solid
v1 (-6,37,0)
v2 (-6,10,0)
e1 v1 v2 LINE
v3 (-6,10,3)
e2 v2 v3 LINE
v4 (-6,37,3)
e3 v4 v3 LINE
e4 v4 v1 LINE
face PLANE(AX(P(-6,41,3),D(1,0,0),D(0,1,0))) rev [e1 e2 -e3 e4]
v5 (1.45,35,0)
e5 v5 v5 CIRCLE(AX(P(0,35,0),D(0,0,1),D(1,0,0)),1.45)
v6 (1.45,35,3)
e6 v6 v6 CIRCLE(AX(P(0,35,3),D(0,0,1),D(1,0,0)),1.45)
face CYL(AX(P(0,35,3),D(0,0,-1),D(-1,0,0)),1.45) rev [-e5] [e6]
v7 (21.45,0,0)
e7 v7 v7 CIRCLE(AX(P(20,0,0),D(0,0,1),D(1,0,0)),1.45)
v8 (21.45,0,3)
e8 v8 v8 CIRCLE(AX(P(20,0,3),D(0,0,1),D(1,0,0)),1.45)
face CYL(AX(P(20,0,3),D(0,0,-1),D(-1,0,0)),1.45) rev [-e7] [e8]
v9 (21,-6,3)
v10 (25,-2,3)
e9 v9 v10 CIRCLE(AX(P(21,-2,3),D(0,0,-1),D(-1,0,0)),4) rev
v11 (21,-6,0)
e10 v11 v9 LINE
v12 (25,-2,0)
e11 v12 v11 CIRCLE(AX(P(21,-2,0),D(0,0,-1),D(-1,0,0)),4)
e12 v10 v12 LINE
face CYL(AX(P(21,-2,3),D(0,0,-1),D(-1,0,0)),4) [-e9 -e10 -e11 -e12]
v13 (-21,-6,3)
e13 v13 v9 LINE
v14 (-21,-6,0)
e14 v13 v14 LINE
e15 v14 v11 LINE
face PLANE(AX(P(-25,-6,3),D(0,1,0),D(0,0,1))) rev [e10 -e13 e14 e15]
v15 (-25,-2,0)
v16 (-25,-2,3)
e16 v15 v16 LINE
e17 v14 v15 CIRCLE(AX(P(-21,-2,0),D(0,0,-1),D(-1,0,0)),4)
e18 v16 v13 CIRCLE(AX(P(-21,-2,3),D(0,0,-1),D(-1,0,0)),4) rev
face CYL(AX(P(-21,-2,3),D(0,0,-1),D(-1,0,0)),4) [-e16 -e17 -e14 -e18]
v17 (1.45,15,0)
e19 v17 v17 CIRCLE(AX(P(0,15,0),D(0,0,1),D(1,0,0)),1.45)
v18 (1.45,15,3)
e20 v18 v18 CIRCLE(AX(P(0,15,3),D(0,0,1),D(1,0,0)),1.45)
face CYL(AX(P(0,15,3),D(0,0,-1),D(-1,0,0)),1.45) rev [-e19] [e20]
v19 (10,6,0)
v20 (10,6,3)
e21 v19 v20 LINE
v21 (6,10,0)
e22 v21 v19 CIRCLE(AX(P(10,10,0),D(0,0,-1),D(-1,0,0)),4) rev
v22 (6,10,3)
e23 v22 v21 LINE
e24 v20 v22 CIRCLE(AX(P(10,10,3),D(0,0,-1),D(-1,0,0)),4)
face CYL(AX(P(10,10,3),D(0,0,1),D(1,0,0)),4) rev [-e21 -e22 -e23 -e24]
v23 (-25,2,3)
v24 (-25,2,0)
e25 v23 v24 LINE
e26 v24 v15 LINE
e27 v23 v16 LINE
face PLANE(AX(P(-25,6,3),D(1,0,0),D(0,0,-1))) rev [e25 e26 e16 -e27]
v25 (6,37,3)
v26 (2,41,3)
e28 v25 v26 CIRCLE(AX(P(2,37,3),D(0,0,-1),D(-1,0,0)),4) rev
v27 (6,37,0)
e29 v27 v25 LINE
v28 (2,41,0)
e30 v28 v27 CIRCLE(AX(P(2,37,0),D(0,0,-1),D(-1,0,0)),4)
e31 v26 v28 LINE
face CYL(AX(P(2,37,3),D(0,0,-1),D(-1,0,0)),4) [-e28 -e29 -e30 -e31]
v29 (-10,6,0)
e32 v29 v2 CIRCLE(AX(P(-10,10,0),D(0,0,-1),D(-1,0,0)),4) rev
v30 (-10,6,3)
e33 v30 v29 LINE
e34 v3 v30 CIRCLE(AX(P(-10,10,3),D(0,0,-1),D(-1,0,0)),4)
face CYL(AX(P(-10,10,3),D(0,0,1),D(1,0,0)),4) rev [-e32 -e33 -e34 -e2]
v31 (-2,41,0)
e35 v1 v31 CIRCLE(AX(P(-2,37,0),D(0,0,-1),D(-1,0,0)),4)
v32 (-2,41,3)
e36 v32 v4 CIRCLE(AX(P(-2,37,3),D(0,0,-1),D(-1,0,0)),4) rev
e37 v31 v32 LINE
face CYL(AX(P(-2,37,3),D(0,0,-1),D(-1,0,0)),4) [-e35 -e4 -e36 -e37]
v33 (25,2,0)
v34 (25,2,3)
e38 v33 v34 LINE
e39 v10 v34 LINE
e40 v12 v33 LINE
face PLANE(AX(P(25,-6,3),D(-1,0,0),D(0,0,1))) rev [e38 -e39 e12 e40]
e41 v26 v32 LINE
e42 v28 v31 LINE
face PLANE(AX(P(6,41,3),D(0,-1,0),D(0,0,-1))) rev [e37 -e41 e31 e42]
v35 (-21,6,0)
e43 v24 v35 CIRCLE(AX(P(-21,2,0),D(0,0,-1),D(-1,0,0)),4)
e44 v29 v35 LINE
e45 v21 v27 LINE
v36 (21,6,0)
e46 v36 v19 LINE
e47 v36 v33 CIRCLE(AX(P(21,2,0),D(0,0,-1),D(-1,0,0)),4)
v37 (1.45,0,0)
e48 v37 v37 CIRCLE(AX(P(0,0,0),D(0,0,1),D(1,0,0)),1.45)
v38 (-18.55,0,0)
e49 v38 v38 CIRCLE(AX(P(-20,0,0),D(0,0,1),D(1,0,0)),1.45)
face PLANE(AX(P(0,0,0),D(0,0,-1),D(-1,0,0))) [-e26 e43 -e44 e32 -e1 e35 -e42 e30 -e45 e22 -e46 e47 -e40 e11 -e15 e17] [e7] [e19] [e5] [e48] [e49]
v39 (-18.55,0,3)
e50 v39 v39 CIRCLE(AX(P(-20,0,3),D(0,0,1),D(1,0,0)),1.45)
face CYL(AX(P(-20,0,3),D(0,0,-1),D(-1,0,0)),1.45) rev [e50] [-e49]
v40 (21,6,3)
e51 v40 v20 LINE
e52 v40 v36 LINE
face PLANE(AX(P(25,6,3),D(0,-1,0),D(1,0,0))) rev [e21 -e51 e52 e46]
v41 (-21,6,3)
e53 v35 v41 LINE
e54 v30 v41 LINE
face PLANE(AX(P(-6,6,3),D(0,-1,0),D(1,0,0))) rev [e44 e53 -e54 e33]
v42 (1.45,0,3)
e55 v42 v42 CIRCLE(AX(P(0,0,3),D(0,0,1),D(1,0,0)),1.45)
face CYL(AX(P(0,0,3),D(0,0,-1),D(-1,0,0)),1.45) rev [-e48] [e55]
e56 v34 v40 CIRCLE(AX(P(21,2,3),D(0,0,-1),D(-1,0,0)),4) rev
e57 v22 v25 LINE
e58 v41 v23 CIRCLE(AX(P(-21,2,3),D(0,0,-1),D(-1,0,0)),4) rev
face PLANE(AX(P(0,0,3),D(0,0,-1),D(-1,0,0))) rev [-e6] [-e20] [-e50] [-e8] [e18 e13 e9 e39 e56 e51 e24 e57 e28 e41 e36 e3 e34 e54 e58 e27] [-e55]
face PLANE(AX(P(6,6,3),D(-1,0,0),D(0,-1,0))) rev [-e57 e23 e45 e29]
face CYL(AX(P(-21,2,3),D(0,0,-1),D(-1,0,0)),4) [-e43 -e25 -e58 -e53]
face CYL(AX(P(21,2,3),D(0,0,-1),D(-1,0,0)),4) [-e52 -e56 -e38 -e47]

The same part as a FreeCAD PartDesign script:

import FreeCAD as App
import Part
import Sketcher


def edges_at(feature, points):
    """Names of the edges that pass closest to the given points."""
    edges = feature.Shape.Edges
    near = lambda p: min(range(len(edges)), key=lambda i: edges[i].distToShape(Part.Vertex(*p))[0])
    return sorted({f"Edge{near(p) + 1}" for p in points})


def add_polygon(sketch, points):
    """Adds a closed chain of lines whose ends are joined by coincident constraints."""
    first, n = sketch.GeometryCount, len(points)
    for a, b in zip(points, points[1:] + points[:1]):
        sketch.addGeometry(Part.LineSegment(App.Vector(*a, 0), App.Vector(*b, 0)), False)
    for i in range(n):
        sketch.addConstraint(Sketcher.Constraint("Coincident", first + i, 2, first + (i + 1) % n, 1))

doc = App.newDocument("Part")
body = doc.addObject("PartDesign::Body", "Body")

# Sketch on XY plane
sketch1 = body.newObject("Sketcher::SketchObject", "Sketch")
sketch1.AttachmentSupport = (doc.getObject("XY_Plane"), [""])
sketch1.MapMode = "FlatFace"
add_polygon(sketch1, [(-6, 6), (-25, 6), (-25, -6), (25, -6), (25, 6), (6, 6), (6, 41), (-6, 41)])  # lines 0-7
sketch1.addGeometry(Part.Circle(App.Vector(-20, 0, 0), App.Vector(0, 0, 1), 1.45), False)  # 8
sketch1.addGeometry(Part.Circle(App.Vector(0, 0, 0), App.Vector(0, 0, 1), 1.45), False)  # 9
sketch1.addGeometry(Part.Circle(App.Vector(20, 0, 0), App.Vector(0, 0, 1), 1.45), False)  # 10
sketch1.addGeometry(Part.Circle(App.Vector(0, 15, 0), App.Vector(0, 0, 1), 1.45), False)  # 11
sketch1.addGeometry(Part.Circle(App.Vector(0, 35, 0), App.Vector(0, 0, 1), 1.45), False)  # 12
sketch1.addConstraint([
    Sketcher.Constraint("Horizontal", 0),
    Sketcher.Constraint("Vertical", 1),
    Sketcher.Constraint("Horizontal", 2),
    Sketcher.Constraint("Vertical", 3),
    Sketcher.Constraint("Horizontal", 4),
    Sketcher.Constraint("Vertical", 5),
    Sketcher.Constraint("Horizontal", 6),
    Sketcher.Constraint("Vertical", 7),
    Sketcher.Constraint("Coincident", 9, 3, -1, 1),
    Sketcher.Constraint("Equal", 8, 9),
    Sketcher.Constraint("Equal", 9, 10),
    Sketcher.Constraint("Equal", 10, 11),
    Sketcher.Constraint("Equal", 11, 12),
    Sketcher.Constraint("Symmetric", 8, 3, 10, 3, -1, 1),
    Sketcher.Constraint("Symmetric", 0, 2, 2, 2, -1, 1),
    Sketcher.Constraint("Symmetric", 4, 2, 7, 2, -2),
    Sketcher.Constraint("PointOnObject", 8, 3, -1),
    Sketcher.Constraint("PointOnObject", 11, 3, -2),
    Sketcher.Constraint("PointOnObject", 12, 3, -2),
    Sketcher.Constraint("Equal", 6, 1),
    Sketcher.Constraint("Diameter", 8, 2.9),
    Sketcher.Constraint("DistanceX", 0, 2, 0, 1, 19.0),
    Sketcher.Constraint("DistanceX", 2, 1, 2, 2, 50.0),
    Sketcher.Constraint("DistanceY", 5, 1, 5, 2, 35.0),
    Sketcher.Constraint("DistanceX", 8, 3, -1, 1, 20.0),
    Sketcher.Constraint("DistanceY", -1, 1, 11, 3, 15.0),
    Sketcher.Constraint("DistanceY", -1, 1, 12, 3, 35.0),
])
pad1 = body.newObject("PartDesign::Pad", "Pad")
pad1.Profile = sketch1
pad1.Length = 3
doc.recompute()

fillet = body.newObject("PartDesign::Fillet", "Fillet")
fillet.Base = (pad1, edges_at(pad1, [
    (-6, 41, 1.5),
    (6, 41, 1.5),
    (6, 6, 1.5),
    (25, 6, 1.5),
    (25, -6, 1.5),
    (-25, -6, 1.5),
    (-25, 6, 1.5),
    (-6, 6, 1.5),
]))
fillet.Radius = 4

doc.recompute()
